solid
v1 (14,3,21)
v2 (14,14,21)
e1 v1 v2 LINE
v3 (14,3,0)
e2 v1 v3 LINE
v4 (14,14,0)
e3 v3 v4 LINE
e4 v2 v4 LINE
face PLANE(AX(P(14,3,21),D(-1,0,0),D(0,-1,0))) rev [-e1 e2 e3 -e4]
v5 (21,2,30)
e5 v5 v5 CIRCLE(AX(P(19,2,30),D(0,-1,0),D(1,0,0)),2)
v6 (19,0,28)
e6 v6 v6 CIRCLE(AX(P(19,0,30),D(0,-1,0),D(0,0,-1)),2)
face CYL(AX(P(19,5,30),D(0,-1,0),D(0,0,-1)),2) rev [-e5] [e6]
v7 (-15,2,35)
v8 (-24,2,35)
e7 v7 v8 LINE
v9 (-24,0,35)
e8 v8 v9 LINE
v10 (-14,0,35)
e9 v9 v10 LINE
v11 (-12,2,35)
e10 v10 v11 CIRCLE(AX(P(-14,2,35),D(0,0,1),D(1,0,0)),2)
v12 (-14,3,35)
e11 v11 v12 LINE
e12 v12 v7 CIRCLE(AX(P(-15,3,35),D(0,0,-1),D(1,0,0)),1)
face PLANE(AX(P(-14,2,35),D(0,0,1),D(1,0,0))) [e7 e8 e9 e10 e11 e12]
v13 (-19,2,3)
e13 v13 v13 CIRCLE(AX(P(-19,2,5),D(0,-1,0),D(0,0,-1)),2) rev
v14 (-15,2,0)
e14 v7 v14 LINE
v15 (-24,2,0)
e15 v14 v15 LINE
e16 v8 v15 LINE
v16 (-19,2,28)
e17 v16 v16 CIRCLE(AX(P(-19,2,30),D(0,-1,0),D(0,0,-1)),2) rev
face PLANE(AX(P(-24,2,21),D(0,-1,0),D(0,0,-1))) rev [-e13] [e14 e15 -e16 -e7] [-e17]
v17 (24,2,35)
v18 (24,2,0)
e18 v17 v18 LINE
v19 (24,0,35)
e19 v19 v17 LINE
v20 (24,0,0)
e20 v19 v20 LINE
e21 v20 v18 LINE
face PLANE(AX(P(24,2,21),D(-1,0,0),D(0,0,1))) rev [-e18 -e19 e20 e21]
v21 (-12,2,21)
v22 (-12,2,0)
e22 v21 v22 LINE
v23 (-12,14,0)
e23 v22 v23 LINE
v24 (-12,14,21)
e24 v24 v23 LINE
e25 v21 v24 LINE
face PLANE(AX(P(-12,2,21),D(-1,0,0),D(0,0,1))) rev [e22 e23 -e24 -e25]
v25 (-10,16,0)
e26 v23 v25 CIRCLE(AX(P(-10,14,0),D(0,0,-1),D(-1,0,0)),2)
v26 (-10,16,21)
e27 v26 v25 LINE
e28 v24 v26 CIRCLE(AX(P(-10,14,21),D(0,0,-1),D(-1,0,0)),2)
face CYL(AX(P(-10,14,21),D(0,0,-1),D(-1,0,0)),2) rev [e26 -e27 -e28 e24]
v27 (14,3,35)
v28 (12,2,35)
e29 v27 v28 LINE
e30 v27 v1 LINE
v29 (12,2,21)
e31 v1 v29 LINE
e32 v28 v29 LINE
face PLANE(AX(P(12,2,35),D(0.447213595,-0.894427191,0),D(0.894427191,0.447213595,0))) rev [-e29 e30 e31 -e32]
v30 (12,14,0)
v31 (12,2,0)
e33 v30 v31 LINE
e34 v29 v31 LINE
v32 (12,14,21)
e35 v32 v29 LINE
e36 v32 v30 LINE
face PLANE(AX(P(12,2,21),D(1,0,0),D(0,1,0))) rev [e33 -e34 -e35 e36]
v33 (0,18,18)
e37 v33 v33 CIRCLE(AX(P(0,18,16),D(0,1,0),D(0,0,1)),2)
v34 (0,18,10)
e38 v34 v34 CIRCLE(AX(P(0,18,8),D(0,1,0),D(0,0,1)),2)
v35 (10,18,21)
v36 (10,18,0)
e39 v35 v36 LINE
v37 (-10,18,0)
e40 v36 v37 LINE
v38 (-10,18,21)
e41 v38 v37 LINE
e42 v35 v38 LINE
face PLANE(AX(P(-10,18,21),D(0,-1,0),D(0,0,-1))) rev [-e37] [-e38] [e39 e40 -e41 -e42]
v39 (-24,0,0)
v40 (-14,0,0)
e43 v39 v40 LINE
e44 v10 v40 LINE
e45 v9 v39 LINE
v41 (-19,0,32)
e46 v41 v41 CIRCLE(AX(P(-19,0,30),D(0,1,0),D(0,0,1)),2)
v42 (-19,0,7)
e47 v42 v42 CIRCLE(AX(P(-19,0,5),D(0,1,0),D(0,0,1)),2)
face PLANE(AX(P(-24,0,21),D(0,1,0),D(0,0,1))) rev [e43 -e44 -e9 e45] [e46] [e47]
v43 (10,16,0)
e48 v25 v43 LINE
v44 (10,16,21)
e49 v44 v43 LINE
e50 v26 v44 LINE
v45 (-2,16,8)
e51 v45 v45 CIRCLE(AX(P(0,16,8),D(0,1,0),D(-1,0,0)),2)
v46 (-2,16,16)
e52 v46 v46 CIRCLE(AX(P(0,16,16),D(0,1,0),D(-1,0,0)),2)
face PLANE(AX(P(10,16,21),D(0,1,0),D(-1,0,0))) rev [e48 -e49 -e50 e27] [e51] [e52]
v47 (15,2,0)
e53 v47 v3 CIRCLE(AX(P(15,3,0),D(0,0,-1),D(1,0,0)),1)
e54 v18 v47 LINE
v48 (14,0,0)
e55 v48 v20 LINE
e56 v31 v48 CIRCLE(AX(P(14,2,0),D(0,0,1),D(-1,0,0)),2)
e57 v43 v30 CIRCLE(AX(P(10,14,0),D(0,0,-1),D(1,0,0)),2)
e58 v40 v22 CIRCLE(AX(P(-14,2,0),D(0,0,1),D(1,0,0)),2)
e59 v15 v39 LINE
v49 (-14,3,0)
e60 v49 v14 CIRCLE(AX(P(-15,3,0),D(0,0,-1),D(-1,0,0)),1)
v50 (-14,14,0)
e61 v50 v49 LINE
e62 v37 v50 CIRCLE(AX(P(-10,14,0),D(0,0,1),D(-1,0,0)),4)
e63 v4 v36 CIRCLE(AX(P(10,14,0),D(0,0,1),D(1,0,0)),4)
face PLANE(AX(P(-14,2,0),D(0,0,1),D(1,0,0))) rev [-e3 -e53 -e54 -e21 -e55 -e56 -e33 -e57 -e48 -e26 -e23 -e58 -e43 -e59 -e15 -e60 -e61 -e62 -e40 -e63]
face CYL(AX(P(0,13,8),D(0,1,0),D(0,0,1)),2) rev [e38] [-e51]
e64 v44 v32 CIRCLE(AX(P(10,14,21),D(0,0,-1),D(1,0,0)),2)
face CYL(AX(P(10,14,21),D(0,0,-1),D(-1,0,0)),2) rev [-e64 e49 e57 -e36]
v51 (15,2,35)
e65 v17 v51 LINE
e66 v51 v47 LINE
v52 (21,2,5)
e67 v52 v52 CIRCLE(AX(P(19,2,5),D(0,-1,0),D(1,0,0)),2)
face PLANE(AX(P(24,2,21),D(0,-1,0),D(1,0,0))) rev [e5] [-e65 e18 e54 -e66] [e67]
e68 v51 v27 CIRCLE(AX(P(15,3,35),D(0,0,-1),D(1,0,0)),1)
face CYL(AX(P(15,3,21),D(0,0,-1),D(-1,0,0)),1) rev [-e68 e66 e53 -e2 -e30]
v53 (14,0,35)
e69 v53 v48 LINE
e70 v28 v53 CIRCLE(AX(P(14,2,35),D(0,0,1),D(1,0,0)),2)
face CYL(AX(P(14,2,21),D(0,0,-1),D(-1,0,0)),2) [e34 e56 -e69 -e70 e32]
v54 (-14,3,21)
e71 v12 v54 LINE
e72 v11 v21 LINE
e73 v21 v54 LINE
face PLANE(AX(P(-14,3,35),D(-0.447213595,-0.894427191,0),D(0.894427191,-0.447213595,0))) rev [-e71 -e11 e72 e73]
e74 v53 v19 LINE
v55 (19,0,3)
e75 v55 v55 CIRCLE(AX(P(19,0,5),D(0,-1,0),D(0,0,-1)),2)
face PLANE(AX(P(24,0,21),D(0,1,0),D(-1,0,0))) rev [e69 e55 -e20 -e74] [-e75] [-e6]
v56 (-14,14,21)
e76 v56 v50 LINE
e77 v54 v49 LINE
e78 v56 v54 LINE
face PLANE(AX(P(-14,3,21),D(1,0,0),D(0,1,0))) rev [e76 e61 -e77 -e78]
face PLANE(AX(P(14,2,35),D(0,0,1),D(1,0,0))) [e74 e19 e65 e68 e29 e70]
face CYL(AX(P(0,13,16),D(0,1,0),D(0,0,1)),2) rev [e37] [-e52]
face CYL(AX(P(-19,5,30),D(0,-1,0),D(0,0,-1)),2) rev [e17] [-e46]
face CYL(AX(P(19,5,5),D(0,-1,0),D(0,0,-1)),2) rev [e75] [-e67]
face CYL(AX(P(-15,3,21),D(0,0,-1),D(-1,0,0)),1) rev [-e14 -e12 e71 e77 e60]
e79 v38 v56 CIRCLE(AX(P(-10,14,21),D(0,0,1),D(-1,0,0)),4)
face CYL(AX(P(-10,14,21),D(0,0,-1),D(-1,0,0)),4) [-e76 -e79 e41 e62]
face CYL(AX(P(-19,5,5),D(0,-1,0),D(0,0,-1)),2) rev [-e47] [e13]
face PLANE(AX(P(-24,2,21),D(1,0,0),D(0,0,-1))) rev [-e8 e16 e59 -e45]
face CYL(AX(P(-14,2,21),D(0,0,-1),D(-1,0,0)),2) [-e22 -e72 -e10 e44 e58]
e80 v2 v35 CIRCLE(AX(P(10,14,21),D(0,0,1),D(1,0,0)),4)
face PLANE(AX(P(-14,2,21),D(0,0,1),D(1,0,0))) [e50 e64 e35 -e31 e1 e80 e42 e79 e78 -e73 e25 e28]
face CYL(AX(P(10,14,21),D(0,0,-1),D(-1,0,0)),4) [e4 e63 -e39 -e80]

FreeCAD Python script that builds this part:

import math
import FreeCAD as App
import Part
import Sketcher
Q = App.Units.Quantity

doc = App.newDocument("Part")
params = doc.addObject("Spreadsheet::Sheet", "Params")
for row, (alias, value) in enumerate([
    ("sketch1_radius", "2 mm"),
    ("sketch1_radius2", "1 mm"),
    ("sketch1_width", "10 mm"),
    ("sketch1_width2", "20 mm"),
    ("sketch1_height", "12 mm"),
    ("pad1_length", "21 mm"),
    ("sketch2_radius", "1 mm"),
    ("sketch2_radius2", "2 mm"),
    ("sketch2_width", "9 mm"),
    ("pad2_length", "14 mm"),
    ("sketch3_diameter", "4 mm"),
    ("pocket1_length", "5 mm"),
    ("sketch4_diameter", "4 mm"),
    ("pocket2_length", "5 mm"),
], start=1):
    params.set(f"A{row}", alias)
    params.set(f"B{row}", "=" + value)
    params.setAlias(f"B{row}", alias)

body = doc.addObject("PartDesign::Body", "Body")

sketch1 = body.newObject("Sketcher::SketchObject", "Sketch")
sketch1.AttachmentSupport = (doc.getObject("XY_Plane"), [""])
sketch1.MapMode = "FlatFace"
sketch1.addGeometry([
    Part.LineSegment(App.Vector(-24, 0, 0), App.Vector(-14, 0, 0)),
    Part.ArcOfCircle(Part.Circle(App.Vector(-14, 2, 0), App.Vector(0, 0, 1), 2), math.radians(-90), math.radians(0)),
    Part.LineSegment(App.Vector(-12, 2, 0), App.Vector(-12, 14, 0)),
    Part.ArcOfCircle(Part.Circle(App.Vector(-10, 14, 0), App.Vector(0, 0, 1), 2), math.radians(90), math.radians(180)),
    Part.LineSegment(App.Vector(-10, 16, 0), App.Vector(10, 16, 0)),
    Part.ArcOfCircle(Part.Circle(App.Vector(10, 14, 0), App.Vector(0, 0, 1), 2), math.radians(0), math.radians(90)),
    Part.LineSegment(App.Vector(12, 14, 0), App.Vector(12, 2, 0)),
    Part.ArcOfCircle(Part.Circle(App.Vector(14, 2, 0), App.Vector(0, 0, 1), 2), math.radians(-180), math.radians(-90)),
    Part.LineSegment(App.Vector(14, 0, 0), App.Vector(24, 0, 0)),
    Part.LineSegment(App.Vector(24, 0, 0), App.Vector(24, 2, 0)),
    Part.LineSegment(App.Vector(24, 2, 0), App.Vector(15, 2, 0)),
    Part.ArcOfCircle(Part.Circle(App.Vector(15, 3, 0), App.Vector(0, 0, 1), 1), math.radians(-180), math.radians(-90)),
    Part.LineSegment(App.Vector(14, 3, 0), App.Vector(14, 14, 0)),
    Part.ArcOfCircle(Part.Circle(App.Vector(10, 14, 0), App.Vector(0, 0, 1), 4), math.radians(0), math.radians(90)),
    Part.LineSegment(App.Vector(10, 18, 0), App.Vector(-10, 18, 0)),
    Part.ArcOfCircle(Part.Circle(App.Vector(-10, 14, 0), App.Vector(0, 0, 1), 4), math.radians(90), math.radians(180)),
    Part.LineSegment(App.Vector(-14, 14, 0), App.Vector(-14, 3, 0)),
    Part.ArcOfCircle(Part.Circle(App.Vector(-15, 3, 0), App.Vector(0, 0, 1), 1), math.radians(-90), math.radians(0)),
    Part.LineSegment(App.Vector(-15, 2, 0), App.Vector(-24, 2, 0)),
    Part.LineSegment(App.Vector(-24, 2, 0), App.Vector(-24, 0, 0)),
], False)
sketch1.addConstraint([
    Sketcher.Constraint("Tangent", 0, 2, 1, 1),
    Sketcher.Constraint("Tangent", 1, 2, 2, 1),
    Sketcher.Constraint("Tangent", 2, 2, 3, 2),
    Sketcher.Constraint("Tangent", 3, 1, 4, 1),
    Sketcher.Constraint("Tangent", 4, 2, 5, 2),
    Sketcher.Constraint("Tangent", 5, 1, 6, 1),
    Sketcher.Constraint("Tangent", 6, 2, 7, 1),
    Sketcher.Constraint("Tangent", 7, 2, 8, 1),
    Sketcher.Constraint("Coincident", 8, 2, 9, 1),
    Sketcher.Constraint("Coincident", 9, 2, 10, 1),
    Sketcher.Constraint("Tangent", 10, 2, 11, 2),
    Sketcher.Constraint("Tangent", 11, 1, 12, 1),
    Sketcher.Constraint("Tangent", 12, 2, 13, 1),
    Sketcher.Constraint("Tangent", 13, 2, 14, 1),
    Sketcher.Constraint("Tangent", 14, 2, 15, 1),
    Sketcher.Constraint("Tangent", 15, 2, 16, 1),
    Sketcher.Constraint("Tangent", 16, 2, 17, 2),
    Sketcher.Constraint("Tangent", 17, 1, 18, 1),
    Sketcher.Constraint("Coincident", 18, 2, 19, 1),
    Sketcher.Constraint("Coincident", 19, 2, 0, 1),
    Sketcher.Constraint("Horizontal", 0),
    Sketcher.Constraint("Vertical", 2),
    Sketcher.Constraint("Horizontal", 4),
    Sketcher.Constraint("Vertical", 6),
    Sketcher.Constraint("Horizontal", 8),
    Sketcher.Constraint("Vertical", 9),
    Sketcher.Constraint("Horizontal", 10),
    Sketcher.Constraint("Vertical", 12),
    Sketcher.Constraint("Horizontal", 14),
    Sketcher.Constraint("Vertical", 16),
    Sketcher.Constraint("Horizontal", 18),
    Sketcher.Constraint("Vertical", 19),
    Sketcher.Constraint("Coincident", 13, 3, 5, 3),
    Sketcher.Constraint("Coincident", 15, 3, 3, 3),
    Sketcher.Constraint("Equal", 1, 3),
    Sketcher.Constraint("Equal", 3, 5),
    Sketcher.Constraint("Equal", 5, 7),
    Sketcher.Constraint("Equal", 11, 17),
    Sketcher.Constraint("Symmetric", 0, 2, 7, 2, -1, 1),
    Sketcher.Constraint("Symmetric", 9, 2, 18, 2, -2),
    Sketcher.Constraint("PointOnObject", 0, 2, -1),
    Sketcher.Constraint("Horizontal", 6, 2, 9, 2),
    Sketcher.Constraint("Vertical", 7, 2, 11, 1),
    Sketcher.Constraint("Radius", 1, Q("2 mm")),
    Sketcher.Constraint("Radius", 11, Q("1 mm")),
    Sketcher.Constraint("DistanceX", 0, 1, 0, 2, Q("10 mm")),
    Sketcher.Constraint("DistanceX", 4, 1, 4, 2, Q("20 mm")),
    Sketcher.Constraint("DistanceY", 2, 1, 2, 2, Q("12 mm")),
])
sketch1.setExpression("Constraints[43]", "Params.sketch1_radius")
sketch1.setExpression("Constraints[44]", "Params.sketch1_radius2")
sketch1.setExpression("Constraints[45]", "Params.sketch1_width")
sketch1.setExpression("Constraints[46]", "Params.sketch1_width2")
sketch1.setExpression("Constraints[47]", "Params.sketch1_height")
pad1 = body.newObject("PartDesign::Pad", "Pad")
pad1.Profile = sketch1
pad1.setExpression("Length", "Params.pad1_length")

sketch2 = body.newObject("Sketcher::SketchObject", "Sketch001")
sketch2.AttachmentSupport = (doc.getObject("XY_Plane"), [""])
sketch2.MapMode = "FlatFace"
sketch2.AttachmentOffset = App.Placement(App.Vector(0, 0, 21), App.Rotation())
sketch2.addGeometry([
    Part.LineSegment(App.Vector(-12, 2, 0), App.Vector(-14, 3, 0)),
    Part.ArcOfCircle(Part.Circle(App.Vector(-15, 3, 0), App.Vector(0, 0, 1), 1), math.radians(-90), math.radians(0)),
    Part.LineSegment(App.Vector(-15, 2, 0), App.Vector(-24, 2, 0)),
    Part.LineSegment(App.Vector(-24, 2, 0), App.Vector(-24, 0, 0)),
    Part.LineSegment(App.Vector(-24, 0, 0), App.Vector(-14, 0, 0)),
    Part.ArcOfCircle(Part.Circle(App.Vector(-14, 2, 0), App.Vector(0, 0, 1), 2), math.radians(-90), math.radians(0)),
    Part.LineSegment(App.Vector(14, 3, 0), App.Vector(12, 2, 0)),
    Part.ArcOfCircle(Part.Circle(App.Vector(14, 2, 0), App.Vector(0, 0, 1), 2), math.radians(-180), math.radians(-90)),
    Part.LineSegment(App.Vector(14, 0, 0), App.Vector(24, 0, 0)),
    Part.LineSegment(App.Vector(24, 0, 0), App.Vector(24, 2, 0)),
    Part.LineSegment(App.Vector(24, 2, 0), App.Vector(15, 2, 0)),
    Part.ArcOfCircle(Part.Circle(App.Vector(15, 3, 0), App.Vector(0, 0, 1), 1), math.radians(-180), math.radians(-90)),
], False)
sketch2.addConstraint([
    Sketcher.Constraint("Coincident", 0, 2, 1, 2),
    Sketcher.Constraint("Tangent", 1, 1, 2, 1),
    Sketcher.Constraint("Coincident", 2, 2, 3, 1),
    Sketcher.Constraint("Coincident", 3, 2, 4, 1),
    Sketcher.Constraint("Tangent", 4, 2, 5, 1),
    Sketcher.Constraint("Coincident", 5, 2, 0, 1),
    Sketcher.Constraint("Coincident", 6, 2, 7, 1),
    Sketcher.Constraint("Tangent", 7, 2, 8, 1),
    Sketcher.Constraint("Coincident", 8, 2, 9, 1),
    Sketcher.Constraint("Coincident", 9, 2, 10, 1),
    Sketcher.Constraint("Tangent", 10, 2, 11, 2),
    Sketcher.Constraint("Coincident", 11, 1, 6, 1),
    Sketcher.Constraint("Horizontal", 2),
    Sketcher.Constraint("Vertical", 3),
    Sketcher.Constraint("Horizontal", 4),
    Sketcher.Constraint("Horizontal", 8),
    Sketcher.Constraint("Vertical", 9),
    Sketcher.Constraint("Horizontal", 10),
    Sketcher.Constraint("Equal", 5, 7),
    Sketcher.Constraint("Equal", 1, 11),
    Sketcher.Constraint("Symmetric", 4, 2, 7, 2, -1, 1),
    Sketcher.Constraint("Symmetric", 1, 3, 11, 3, -2),
    Sketcher.Constraint("Symmetric", 3, 2, 8, 2, -2),
    Sketcher.Constraint("Horizontal", 11, 3, 0, 2),
    Sketcher.Constraint("Horizontal", 7, 3, 1, 1),
    Sketcher.Constraint("Horizontal", 2, 2, 5, 2),
    Sketcher.Constraint("Horizontal", 5, 2, 6, 2),
    Sketcher.Constraint("Horizontal", 0, 2, 11, 1),
    Sketcher.Constraint("Vertical", 5, 3, 0, 2),
    Sketcher.Constraint("Radius", 1, Q("1 mm")),
    Sketcher.Constraint("Radius", 5, Q("2 mm")),
    Sketcher.Constraint("DistanceX", 2, 2, 2, 1, Q("9 mm")),
    Sketcher.Constraint("DistanceX", 1, 3, -1, 1, Q("15 mm")),
])
sketch2.setExpression("Constraints[29]", "Params.sketch2_radius")
sketch2.setExpression("Constraints[30]", "Params.sketch2_radius2")
sketch2.setExpression("Constraints[31]", "Params.sketch2_width")
pad2 = body.newObject("PartDesign::Pad", "Pad001")
pad2.Profile = sketch2
pad2.setExpression("Length", "Params.pad2_length")

sketch3 = body.newObject("Sketcher::SketchObject", "Sketch002")
sketch3.AttachmentSupport = (doc.getObject("XZ_Plane"), [""])
sketch3.MapMode = "FlatFace"
sketch3.addGeometry([
    Part.Circle(App.Vector(-19, 5, 0), App.Vector(0, 0, 1), 2),
    Part.Circle(App.Vector(-19, 30, 0), App.Vector(0, 0, 1), 2),
    Part.Circle(App.Vector(19, 30, 0), App.Vector(0, 0, 1), 2),
    Part.Circle(App.Vector(19, 5, 0), App.Vector(0, 0, 1), 2),
], False)
sketch3.addConstraint([
    Sketcher.Constraint("Equal", 0, 1),
    Sketcher.Constraint("Equal", 1, 2),
    Sketcher.Constraint("Equal", 2, 3),
    Sketcher.Constraint("Symmetric", 1, 3, 2, 3, -2),
    Sketcher.Constraint("Symmetric", 0, 3, 3, 3, -2),
    Sketcher.Constraint("Vertical", 0, 3, 1, 3),
    Sketcher.Constraint("Diameter", 0, Q("4 mm")),
    Sketcher.Constraint("DistanceX", 0, 3, -1, 1, Q("19 mm")),
    Sketcher.Constraint("DistanceY", -1, 1, 0, 3, Q("5 mm")),
    Sketcher.Constraint("DistanceY", -1, 1, 1, 3, Q("30 mm")),
])
sketch3.setExpression("Constraints[6]", "Params.sketch3_diameter")
pocket1 = body.newObject("PartDesign::Pocket", "Pocket")
pocket1.Profile = sketch3
pocket1.setExpression("Length", "Params.pocket1_length")

sketch4 = body.newObject("Sketcher::SketchObject", "Sketch003")
sketch4.AttachmentSupport = (doc.getObject("XZ_Plane"), [""])
sketch4.MapMode = "FlatFace"
sketch4.AttachmentOffset = App.Placement(App.Vector(0, 0, -18), App.Rotation())
sketch4.addGeometry([
    Part.Circle(App.Vector(0, 8, 0), App.Vector(0, 0, 1), 2),
    Part.Circle(App.Vector(0, 16, 0), App.Vector(0, 0, 1), 2),
], False)
sketch4.addConstraint([
    Sketcher.Constraint("Equal", 0, 1),
    Sketcher.Constraint("PointOnObject", 0, 3, -2),
    Sketcher.Constraint("PointOnObject", 1, 3, -2),
    Sketcher.Constraint("Diameter", 0, Q("4 mm")),
    Sketcher.Constraint("DistanceY", -1, 1, 0, 3, Q("8 mm")),
    Sketcher.Constraint("DistanceY", -1, 1, 1, 3, Q("16 mm")),
])
sketch4.setExpression("Constraints[3]", "Params.sketch4_diameter")
pocket2 = body.newObject("PartDesign::Pocket", "Pocket001")
pocket2.Profile = sketch4
pocket2.setExpression("Length", "Params.pocket2_length")
pocket2.Reversed = True

doc.recompute()
